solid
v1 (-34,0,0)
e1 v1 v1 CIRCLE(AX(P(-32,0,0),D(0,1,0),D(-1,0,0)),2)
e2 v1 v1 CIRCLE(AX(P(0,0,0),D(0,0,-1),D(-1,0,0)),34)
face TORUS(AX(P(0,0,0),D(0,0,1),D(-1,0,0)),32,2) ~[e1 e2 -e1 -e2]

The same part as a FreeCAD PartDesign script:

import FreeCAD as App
import Part
import Sketcher
from FreeCAD import Vector

doc = App.newDocument("Part")
body = doc.addObject("PartDesign::Body", "Body")

# Sketch on XZ plane
sketch1 = body.newObject("Sketcher::SketchObject", "Sketch")
sketch1.AttachmentSupport = (doc.getObject("XZ_Plane"), [""])
sketch1.MapMode = "FlatFace"
sketch1.addGeometry(Part.Circle(Vector(-32, 0, 0), Vector(0, 0, 1), 2), False)
sketch1.addConstraint([
    Sketcher.Constraint("PointOnObject", 0, 3, -1),
    Sketcher.Constraint("Diameter", 0, 4.0),
    Sketcher.Constraint("DistanceX", 0, 3, -1, 1, 32.0),
])
revolution = body.newObject("PartDesign::Revolution", "Revolution")
revolution.Profile = sketch1
revolution.ReferenceAxis = (sketch1, ["V_Axis"])
revolution.Angle = 360

doc.recompute()
